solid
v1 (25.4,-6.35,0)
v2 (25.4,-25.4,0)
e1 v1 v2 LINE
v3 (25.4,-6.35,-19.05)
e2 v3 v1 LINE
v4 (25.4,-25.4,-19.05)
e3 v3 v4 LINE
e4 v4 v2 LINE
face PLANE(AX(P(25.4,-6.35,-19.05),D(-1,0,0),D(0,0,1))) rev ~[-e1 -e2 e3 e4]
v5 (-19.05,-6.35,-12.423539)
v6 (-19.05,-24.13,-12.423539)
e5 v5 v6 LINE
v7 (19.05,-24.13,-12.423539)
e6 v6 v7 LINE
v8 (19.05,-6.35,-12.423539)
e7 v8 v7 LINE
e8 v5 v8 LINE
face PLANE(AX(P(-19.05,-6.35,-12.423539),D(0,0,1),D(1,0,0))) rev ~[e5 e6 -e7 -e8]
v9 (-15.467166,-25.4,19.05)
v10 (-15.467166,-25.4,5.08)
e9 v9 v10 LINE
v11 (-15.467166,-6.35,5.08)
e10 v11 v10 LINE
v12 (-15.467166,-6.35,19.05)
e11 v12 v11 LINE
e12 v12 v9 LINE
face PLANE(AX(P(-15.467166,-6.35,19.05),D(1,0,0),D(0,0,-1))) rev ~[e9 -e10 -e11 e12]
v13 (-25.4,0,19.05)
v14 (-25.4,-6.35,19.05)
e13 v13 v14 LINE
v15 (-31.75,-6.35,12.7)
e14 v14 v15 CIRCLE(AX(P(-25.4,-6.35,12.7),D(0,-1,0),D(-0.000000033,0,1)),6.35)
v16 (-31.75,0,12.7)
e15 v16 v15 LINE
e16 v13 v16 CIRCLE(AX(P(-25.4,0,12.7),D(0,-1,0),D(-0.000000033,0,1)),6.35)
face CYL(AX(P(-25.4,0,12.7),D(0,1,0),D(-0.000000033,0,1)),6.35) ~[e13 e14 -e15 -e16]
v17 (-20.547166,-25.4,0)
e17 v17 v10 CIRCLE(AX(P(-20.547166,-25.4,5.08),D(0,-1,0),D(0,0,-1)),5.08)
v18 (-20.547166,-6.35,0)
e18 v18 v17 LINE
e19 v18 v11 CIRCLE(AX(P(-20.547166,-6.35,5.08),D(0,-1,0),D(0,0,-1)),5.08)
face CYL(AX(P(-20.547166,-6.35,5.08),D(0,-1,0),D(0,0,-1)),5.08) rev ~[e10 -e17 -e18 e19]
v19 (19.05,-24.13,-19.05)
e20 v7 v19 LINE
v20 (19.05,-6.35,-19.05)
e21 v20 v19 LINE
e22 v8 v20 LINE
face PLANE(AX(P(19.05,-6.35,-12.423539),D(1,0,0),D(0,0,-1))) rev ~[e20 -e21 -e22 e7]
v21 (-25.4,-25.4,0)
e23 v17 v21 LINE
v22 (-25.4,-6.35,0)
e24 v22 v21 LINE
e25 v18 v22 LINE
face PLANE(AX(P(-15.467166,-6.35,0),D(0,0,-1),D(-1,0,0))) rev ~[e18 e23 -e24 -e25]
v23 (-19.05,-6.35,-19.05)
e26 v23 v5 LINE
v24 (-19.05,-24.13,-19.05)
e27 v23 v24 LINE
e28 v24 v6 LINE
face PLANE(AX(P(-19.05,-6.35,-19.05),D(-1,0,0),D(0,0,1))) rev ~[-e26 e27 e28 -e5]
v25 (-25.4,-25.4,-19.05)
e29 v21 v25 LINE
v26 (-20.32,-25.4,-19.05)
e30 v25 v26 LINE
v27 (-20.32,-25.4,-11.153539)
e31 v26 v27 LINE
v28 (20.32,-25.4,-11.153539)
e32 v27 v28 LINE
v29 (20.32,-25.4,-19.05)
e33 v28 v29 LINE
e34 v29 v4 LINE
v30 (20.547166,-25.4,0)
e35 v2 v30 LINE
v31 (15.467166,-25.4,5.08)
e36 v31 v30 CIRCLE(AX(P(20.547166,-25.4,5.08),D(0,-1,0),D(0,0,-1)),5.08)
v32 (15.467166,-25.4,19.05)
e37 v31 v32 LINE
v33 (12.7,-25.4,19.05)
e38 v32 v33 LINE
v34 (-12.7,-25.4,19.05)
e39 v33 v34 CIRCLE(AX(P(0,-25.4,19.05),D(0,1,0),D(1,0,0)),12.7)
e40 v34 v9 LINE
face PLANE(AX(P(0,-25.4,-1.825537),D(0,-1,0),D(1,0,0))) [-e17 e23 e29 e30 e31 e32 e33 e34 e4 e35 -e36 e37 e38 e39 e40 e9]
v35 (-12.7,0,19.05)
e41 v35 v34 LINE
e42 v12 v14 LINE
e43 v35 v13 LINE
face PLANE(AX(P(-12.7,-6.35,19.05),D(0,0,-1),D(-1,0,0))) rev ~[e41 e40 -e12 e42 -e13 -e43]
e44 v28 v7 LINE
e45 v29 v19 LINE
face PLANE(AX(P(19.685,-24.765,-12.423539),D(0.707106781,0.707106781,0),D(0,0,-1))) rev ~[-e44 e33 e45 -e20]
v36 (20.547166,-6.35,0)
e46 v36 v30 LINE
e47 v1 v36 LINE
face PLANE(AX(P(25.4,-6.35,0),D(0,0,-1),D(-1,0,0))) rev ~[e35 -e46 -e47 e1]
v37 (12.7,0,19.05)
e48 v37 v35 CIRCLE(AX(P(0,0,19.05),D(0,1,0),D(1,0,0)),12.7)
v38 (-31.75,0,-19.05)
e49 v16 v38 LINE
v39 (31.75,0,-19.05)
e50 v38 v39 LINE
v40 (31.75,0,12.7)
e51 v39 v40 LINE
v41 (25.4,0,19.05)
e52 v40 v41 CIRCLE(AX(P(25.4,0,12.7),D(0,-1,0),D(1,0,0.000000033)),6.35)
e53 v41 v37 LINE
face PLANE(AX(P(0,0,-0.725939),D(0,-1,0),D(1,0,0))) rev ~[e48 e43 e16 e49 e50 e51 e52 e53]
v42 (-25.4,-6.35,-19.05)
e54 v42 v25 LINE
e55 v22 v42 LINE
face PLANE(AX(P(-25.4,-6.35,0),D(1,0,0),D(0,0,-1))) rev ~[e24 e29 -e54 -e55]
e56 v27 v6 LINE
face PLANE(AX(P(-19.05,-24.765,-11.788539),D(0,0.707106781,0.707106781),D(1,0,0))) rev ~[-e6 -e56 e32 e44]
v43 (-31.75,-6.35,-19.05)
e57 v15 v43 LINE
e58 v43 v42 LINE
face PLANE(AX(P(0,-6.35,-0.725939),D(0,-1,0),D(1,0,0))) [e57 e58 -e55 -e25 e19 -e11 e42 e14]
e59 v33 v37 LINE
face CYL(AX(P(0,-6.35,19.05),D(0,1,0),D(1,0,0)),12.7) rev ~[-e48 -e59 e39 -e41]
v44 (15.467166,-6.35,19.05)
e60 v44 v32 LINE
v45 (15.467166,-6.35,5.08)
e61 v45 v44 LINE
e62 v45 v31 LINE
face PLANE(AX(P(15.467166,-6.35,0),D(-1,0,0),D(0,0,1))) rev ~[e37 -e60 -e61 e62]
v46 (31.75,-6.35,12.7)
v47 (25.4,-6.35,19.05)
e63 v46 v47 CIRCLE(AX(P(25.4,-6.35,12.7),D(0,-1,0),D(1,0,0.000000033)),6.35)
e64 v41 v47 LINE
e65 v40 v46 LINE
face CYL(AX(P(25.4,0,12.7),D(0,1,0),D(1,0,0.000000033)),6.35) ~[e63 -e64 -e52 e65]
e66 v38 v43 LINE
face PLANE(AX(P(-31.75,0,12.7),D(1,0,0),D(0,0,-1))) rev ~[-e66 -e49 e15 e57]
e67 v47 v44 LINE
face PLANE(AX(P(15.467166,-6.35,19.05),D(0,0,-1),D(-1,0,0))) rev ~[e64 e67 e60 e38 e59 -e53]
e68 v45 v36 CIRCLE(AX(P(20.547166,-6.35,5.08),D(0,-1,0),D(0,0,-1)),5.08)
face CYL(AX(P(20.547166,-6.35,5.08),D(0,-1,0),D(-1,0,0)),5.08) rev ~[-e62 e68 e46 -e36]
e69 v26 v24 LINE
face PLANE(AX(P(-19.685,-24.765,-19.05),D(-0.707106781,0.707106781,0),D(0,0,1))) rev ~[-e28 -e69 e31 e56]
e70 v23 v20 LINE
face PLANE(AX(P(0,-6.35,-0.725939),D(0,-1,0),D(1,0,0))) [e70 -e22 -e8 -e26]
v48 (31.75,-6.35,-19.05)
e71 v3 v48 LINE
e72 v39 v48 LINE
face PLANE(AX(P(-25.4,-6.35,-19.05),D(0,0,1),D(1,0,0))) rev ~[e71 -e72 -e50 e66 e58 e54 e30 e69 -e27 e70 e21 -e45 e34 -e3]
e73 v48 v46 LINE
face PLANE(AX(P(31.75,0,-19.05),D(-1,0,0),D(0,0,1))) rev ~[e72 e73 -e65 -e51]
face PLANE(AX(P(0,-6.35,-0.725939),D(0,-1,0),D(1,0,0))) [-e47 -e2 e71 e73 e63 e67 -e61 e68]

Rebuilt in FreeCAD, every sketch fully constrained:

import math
import FreeCAD as App
import Part
import Sketcher
from FreeCAD import Vector
Q = App.Units.Quantity


def edges_at(feature, points):
    """Names of the edges that pass closest to the given points."""
    edges = feature.Shape.Edges
    near = lambda p: min(range(len(edges)), key=lambda i: edges[i].distToShape(Part.Vertex(*p))[0])
    return sorted({f"Edge{near(p) + 1}" for p in points})

doc = App.newDocument("Part")
body = doc.addObject("PartDesign::Body", "Body")

# Sketch on XZ plane
sketch1 = body.newObject("Sketcher::SketchObject", "Sketch")
sketch1.AttachmentSupport = (doc.getObject("XZ_Plane"), [""])
sketch1.MapMode = "FlatFace"
sketch1.addGeometry([
    Part.LineSegment(Vector(-12.7, 19.05, 0), Vector(-25.4, 19.05, 0)),  # 0
    Part.ArcOfCircle(Part.Circle(Vector(-25.4, 12.7, 0), Vector(0, 0, 1), 6.35), math.radians(90.000002), math.radians(179.999998)),  # 1
    Part.LineSegment(Vector(-31.75, 12.7, 0), Vector(-31.75, -19.05, 0)),  # 2
    Part.LineSegment(Vector(-31.75, -19.05, 0), Vector(31.75, -19.05, 0)),  # 3
    Part.LineSegment(Vector(31.75, -19.05, 0), Vector(31.75, 12.7, 0)),  # 4
    Part.ArcOfCircle(Part.Circle(Vector(25.4, 12.7, 0), Vector(0, 0, 1), 6.35), math.radians(0.000002), math.radians(89.999998)),  # 5
    Part.LineSegment(Vector(25.4, 19.05, 0), Vector(12.7, 19.05, 0)),  # 6
    Part.ArcOfCircle(Part.Circle(Vector(0, 19.05, 0), Vector(0, 0, 1), 12.7), math.radians(180), math.radians(360)),  # 7
], False)
sketch1.addConstraint([
    Sketcher.Constraint("Tangent", 0, 2, 1, 1),
    Sketcher.Constraint("Tangent", 1, 2, 2, 1),
    Sketcher.Constraint("Coincident", 2, 2, 3, 1),
    Sketcher.Constraint("Coincident", 3, 2, 4, 1),
    Sketcher.Constraint("Tangent", 4, 2, 5, 1),
    Sketcher.Constraint("Tangent", 5, 2, 6, 1),
    Sketcher.Constraint("Coincident", 6, 2, 7, 2),
    Sketcher.Constraint("Coincident", 7, 1, 0, 1),
    Sketcher.Constraint("Horizontal", 0),
    Sketcher.Constraint("Vertical", 2),
    Sketcher.Constraint("Horizontal", 3),
    Sketcher.Constraint("Vertical", 4),
    Sketcher.Constraint("Horizontal", 6),
    Sketcher.Constraint("Equal", 1, 5),
    Sketcher.Constraint("Symmetric", 1, 3, 5, 3, -2),
    Sketcher.Constraint("PointOnObject", 7, 3, -2),
    Sketcher.Constraint("Horizontal", 7, 3, 0, 2),
    Sketcher.Constraint("Radius", 7, Q("0.5 in")),
    Sketcher.Constraint("Radius", 1, Q("0.25 in")),
    Sketcher.Constraint("DistanceX", 0, 2, 0, 1, Q("0.5 in")),
    Sketcher.Constraint("DistanceY", 2, 2, 2, 1, Q("1.25 in")),
    Sketcher.Constraint("DistanceY", -1, 1, 1, 3, Q("0.5 in")),
])
pad1 = body.newObject("PartDesign::Pad", "Pad")
pad1.Profile = sketch1
pad1.Length = Q("0.25 in")

# Sketch on XZ plane
sketch2 = body.newObject("Sketcher::SketchObject", "Sketch001")
sketch2.AttachmentSupport = (doc.getObject("XZ_Plane"), [""])
sketch2.MapMode = "FlatFace"
sketch2.AttachmentOffset = App.Placement(Vector(0, 0, 0.25 * 25.4), App.Rotation())
sketch2.addGeometry([
    Part.ArcOfCircle(Part.Circle(Vector(0, 19.05, 0), Vector(0, 0, 1), 12.7), math.radians(180), math.radians(360)),  # 0
    Part.LineSegment(Vector(-12.7, 19.05, 0), Vector(-15.467166, 19.05, 0)),  # 1
    Part.LineSegment(Vector(-15.467166, 19.05, 0), Vector(-15.467166, 0, 0)),  # 2
    Part.LineSegment(Vector(-15.467166, 0, 0), Vector(-25.4, 0, 0)),  # 3
    Part.LineSegment(Vector(-25.4, 0, 0), Vector(-25.4, -19.05, 0)),  # 4
    Part.LineSegment(Vector(-25.4, -19.05, 0), Vector(-19.05, -19.05, 0)),  # 5
    Part.LineSegment(Vector(-19.05, -19.05, 0), Vector(-19.05, -12.423539, 0)),  # 6
    Part.LineSegment(Vector(-19.05, -12.423539, 0), Vector(19.05, -12.423539, 0)),  # 7
    Part.LineSegment(Vector(19.05, -12.423539, 0), Vector(19.05, -19.05, 0)),  # 8
    Part.LineSegment(Vector(19.05, -19.05, 0), Vector(25.4, -19.05, 0)),  # 9
    Part.LineSegment(Vector(25.4, -19.05, 0), Vector(25.4, 0, 0)),  # 10
    Part.LineSegment(Vector(25.4, 0, 0), Vector(15.467166, 0, 0)),  # 11
    Part.LineSegment(Vector(15.467166, 0, 0), Vector(15.467166, 19.05, 0)),  # 12
    Part.LineSegment(Vector(15.467166, 19.05, 0), Vector(12.7, 19.05, 0)),  # 13
], False)
sketch2.addConstraint([
    Sketcher.Constraint("Coincident", 0, 1, 1, 1),
    Sketcher.Constraint("Coincident", 1, 2, 2, 1),
    Sketcher.Constraint("Coincident", 2, 2, 3, 1),
    Sketcher.Constraint("Coincident", 3, 2, 4, 1),
    Sketcher.Constraint("Coincident", 4, 2, 5, 1),
    Sketcher.Constraint("Coincident", 5, 2, 6, 1),
    Sketcher.Constraint("Coincident", 6, 2, 7, 1),
    Sketcher.Constraint("Coincident", 7, 2, 8, 1),
    Sketcher.Constraint("Coincident", 8, 2, 9, 1),
    Sketcher.Constraint("Coincident", 9, 2, 10, 1),
    Sketcher.Constraint("Coincident", 10, 2, 11, 1),
    Sketcher.Constraint("Coincident", 11, 2, 12, 1),
    Sketcher.Constraint("Coincident", 12, 2, 13, 1),
    Sketcher.Constraint("Coincident", 13, 2, 0, 2),
    Sketcher.Constraint("Horizontal", 1),
    Sketcher.Constraint("Vertical", 2),
    Sketcher.Constraint("Horizontal", 3),
    Sketcher.Constraint("Vertical", 4),
    Sketcher.Constraint("Horizontal", 5),
    Sketcher.Constraint("Vertical", 6),
    Sketcher.Constraint("Horizontal", 7),
    Sketcher.Constraint("Vertical", 8),
    Sketcher.Constraint("Horizontal", 9),
    Sketcher.Constraint("Vertical", 10),
    Sketcher.Constraint("Horizontal", 11),
    Sketcher.Constraint("Vertical", 12),
    Sketcher.Constraint("Horizontal", 13),
    Sketcher.Constraint("Symmetric", 3, 2, 10, 2, -1, 1),
    Sketcher.Constraint("Symmetric", 5, 2, 8, 2, -2),
    Sketcher.Constraint("Symmetric", 2, 2, 11, 2, -2),
    Sketcher.Constraint("Symmetric", 0, 1, 13, 2, -2),
    Sketcher.Constraint("Equal", 2, 4),
    Sketcher.Constraint("Radius", 0, Q("0.5 in")),
    Sketcher.Constraint("DistanceX", 7, 1, 7, 2, Q("1.5 in")),
    Sketcher.Constraint("DistanceX", 3, 2, -1, 1, Q("1 in")),
    Sketcher.Constraint("DistanceY", 2, 2, 2, 1, Q("0.75 in")),
    Sketcher.Constraint("DistanceY", 4, 2, 0, 3, Q("1.5 in")),
    Sketcher.Constraint("DistanceY", 6, 1, 6, 2, 6.626461),
    Sketcher.Constraint("DistanceX", 1, 2, 1, 1, 2.767166),
])
pad2 = body.newObject("PartDesign::Pad", "Pad001")
pad2.Profile = sketch2
pad2.Length = Q("0.75 in")
doc.recompute()

fillet = body.newObject("PartDesign::Fillet", "Fillet")
fillet.Base = (pad2, edges_at(pad2, [(-15.467, -15.875, 0), (15.467, -15.875, 0)]))
fillet.Radius = Q("0.2 in")
doc.recompute()

chamfer = body.newObject("PartDesign::Chamfer", "Chamfer")
chamfer.Base = (fillet, edges_at(fillet, [(0, -25.4, -12.424), (-19.05, -25.4, -15.737), (19.05, -25.4, -15.737)]))
chamfer.Size = Q("0.05 in")

doc.recompute()
